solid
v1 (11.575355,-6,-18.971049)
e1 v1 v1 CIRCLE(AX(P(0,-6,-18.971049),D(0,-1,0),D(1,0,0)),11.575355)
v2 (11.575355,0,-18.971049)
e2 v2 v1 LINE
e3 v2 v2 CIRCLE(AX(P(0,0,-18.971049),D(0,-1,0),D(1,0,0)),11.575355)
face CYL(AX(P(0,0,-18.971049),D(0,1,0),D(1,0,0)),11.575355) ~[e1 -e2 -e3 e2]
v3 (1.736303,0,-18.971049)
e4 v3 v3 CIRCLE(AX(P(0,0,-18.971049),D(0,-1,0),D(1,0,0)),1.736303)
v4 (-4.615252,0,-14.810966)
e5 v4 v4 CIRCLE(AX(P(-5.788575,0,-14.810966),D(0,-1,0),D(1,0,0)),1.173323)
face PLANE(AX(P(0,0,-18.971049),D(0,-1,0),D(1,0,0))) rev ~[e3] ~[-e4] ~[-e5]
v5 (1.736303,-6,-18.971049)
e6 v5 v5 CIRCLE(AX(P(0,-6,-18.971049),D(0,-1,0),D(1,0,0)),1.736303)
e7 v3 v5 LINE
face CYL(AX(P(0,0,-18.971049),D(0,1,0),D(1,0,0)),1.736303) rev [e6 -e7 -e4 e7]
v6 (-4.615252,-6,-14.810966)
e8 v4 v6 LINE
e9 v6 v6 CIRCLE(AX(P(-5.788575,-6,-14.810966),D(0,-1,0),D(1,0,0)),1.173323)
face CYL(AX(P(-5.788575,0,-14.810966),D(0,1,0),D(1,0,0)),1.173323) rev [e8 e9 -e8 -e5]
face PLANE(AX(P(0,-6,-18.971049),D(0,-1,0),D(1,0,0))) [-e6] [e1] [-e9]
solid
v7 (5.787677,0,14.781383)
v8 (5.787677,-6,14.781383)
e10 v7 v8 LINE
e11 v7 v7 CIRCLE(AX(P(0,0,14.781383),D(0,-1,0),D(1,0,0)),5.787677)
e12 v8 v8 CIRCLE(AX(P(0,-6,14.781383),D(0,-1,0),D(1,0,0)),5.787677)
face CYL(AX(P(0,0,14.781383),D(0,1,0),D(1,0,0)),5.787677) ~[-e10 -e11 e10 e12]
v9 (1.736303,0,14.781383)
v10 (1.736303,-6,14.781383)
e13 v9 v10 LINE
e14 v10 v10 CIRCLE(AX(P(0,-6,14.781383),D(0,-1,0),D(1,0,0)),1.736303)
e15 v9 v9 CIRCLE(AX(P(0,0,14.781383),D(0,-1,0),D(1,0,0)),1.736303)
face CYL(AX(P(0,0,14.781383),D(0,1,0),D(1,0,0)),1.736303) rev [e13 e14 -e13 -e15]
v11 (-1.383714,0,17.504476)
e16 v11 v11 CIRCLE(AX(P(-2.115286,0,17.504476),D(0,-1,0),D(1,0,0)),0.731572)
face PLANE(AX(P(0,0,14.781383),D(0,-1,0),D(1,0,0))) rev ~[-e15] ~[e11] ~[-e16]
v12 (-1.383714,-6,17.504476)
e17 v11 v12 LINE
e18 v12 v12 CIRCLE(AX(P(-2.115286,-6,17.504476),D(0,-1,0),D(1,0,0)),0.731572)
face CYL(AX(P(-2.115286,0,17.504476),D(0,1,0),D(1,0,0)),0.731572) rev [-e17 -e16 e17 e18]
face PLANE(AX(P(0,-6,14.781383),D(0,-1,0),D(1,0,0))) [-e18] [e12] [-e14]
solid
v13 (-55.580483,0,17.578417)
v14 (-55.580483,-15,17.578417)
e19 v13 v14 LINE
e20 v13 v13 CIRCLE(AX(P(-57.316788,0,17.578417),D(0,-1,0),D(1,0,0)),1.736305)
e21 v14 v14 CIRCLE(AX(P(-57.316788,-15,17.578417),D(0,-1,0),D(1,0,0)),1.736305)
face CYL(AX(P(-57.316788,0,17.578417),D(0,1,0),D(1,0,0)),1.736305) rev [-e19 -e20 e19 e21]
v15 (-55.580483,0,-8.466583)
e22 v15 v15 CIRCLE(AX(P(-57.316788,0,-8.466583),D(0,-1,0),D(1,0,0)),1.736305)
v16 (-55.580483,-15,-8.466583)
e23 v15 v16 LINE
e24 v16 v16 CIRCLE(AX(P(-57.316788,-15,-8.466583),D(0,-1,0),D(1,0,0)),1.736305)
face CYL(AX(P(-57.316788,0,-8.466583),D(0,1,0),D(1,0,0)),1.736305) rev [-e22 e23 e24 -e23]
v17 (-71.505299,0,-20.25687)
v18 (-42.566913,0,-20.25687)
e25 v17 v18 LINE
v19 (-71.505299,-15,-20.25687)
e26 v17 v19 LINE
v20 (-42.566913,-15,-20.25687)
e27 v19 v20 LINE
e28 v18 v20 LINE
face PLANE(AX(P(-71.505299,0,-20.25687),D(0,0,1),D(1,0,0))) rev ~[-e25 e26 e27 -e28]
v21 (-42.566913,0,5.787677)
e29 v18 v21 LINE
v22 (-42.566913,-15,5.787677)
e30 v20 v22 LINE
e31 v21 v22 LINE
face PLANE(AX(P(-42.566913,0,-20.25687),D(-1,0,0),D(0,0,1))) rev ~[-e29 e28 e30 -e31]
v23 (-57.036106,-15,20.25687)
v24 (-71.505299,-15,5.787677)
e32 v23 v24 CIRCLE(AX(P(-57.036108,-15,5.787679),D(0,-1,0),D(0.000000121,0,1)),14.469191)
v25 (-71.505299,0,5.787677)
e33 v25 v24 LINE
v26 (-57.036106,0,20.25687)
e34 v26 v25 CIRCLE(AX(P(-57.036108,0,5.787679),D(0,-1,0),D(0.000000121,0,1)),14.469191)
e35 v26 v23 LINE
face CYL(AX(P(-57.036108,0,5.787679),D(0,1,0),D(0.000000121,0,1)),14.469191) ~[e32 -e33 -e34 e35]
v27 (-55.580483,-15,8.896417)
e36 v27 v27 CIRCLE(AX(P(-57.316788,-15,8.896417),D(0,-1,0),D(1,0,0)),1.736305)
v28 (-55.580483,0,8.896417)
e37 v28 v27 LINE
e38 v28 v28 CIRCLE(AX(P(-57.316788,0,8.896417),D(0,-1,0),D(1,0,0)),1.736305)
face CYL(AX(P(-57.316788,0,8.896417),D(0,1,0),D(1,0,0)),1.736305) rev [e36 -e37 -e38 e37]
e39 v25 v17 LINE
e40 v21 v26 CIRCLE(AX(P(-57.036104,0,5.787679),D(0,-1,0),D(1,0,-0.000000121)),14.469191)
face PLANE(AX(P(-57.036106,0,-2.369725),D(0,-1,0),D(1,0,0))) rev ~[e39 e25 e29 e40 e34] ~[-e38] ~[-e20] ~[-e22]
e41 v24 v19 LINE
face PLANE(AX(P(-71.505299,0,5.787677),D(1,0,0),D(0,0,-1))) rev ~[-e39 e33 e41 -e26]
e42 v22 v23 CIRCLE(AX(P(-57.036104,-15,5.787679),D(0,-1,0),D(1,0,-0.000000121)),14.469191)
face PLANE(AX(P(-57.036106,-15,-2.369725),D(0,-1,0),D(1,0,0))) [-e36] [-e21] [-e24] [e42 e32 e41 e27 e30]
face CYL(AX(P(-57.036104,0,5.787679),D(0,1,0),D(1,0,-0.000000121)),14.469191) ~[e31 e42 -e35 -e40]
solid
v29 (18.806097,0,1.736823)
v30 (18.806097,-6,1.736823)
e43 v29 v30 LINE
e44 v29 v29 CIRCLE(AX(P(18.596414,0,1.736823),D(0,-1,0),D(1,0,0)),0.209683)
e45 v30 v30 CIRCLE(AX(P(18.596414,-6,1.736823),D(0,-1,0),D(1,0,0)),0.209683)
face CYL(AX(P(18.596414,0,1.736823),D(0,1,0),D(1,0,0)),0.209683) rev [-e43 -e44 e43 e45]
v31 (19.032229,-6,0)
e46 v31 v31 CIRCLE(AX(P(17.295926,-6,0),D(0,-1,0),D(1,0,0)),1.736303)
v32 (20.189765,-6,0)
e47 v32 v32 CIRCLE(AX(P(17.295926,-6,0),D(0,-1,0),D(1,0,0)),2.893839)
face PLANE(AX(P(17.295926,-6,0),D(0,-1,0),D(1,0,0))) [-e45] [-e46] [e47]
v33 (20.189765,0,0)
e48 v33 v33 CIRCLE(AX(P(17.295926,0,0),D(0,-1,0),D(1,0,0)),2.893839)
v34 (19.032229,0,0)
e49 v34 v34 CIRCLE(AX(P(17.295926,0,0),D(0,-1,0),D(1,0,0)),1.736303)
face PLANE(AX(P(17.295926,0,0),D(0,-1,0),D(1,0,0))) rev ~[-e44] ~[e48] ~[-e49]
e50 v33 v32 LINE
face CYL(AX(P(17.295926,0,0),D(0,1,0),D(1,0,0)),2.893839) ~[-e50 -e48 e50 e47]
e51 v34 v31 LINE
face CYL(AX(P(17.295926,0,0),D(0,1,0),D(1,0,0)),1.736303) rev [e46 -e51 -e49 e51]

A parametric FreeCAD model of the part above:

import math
import FreeCAD as App
import Part
import Sketcher
Q = App.Units.Quantity

doc = App.newDocument("Part")
body = doc.addObject("PartDesign::Body", "Body")

# Sketch on XZ plane
sketch1 = body.newObject("Sketcher::SketchObject", "Sketch")
sketch1.AttachmentSupport = (doc.getObject("XZ_Plane"), [""])
sketch1.MapMode = "FlatFace"
sketch1.addGeometry([
    Part.LineSegment(App.Vector(-71.5, -20.3, 0), App.Vector(-42.6, -20.3, 0)),  # 0
    Part.LineSegment(App.Vector(-42.6, -20.3, 0), App.Vector(-42.6, 5.8, 0)),  # 1
    Part.ArcOfCircle(Part.Circle(App.Vector(-57, 5.8, 0), App.Vector(0, 0, 1), 14.5), math.radians(0), math.radians(90)),  # 2
    Part.ArcOfCircle(Part.Circle(App.Vector(-57, 5.8, 0), App.Vector(0, 0, 1), 14.5), math.radians(90), math.radians(180)),  # 3
    Part.LineSegment(App.Vector(-71.5, 5.8, 0), App.Vector(-71.5, -20.3, 0)),  # 4
    Part.Circle(App.Vector(-57.3, -8.5, 0), App.Vector(0, 0, 1), 1.7),  # 5
    Part.Circle(App.Vector(-57.3, 8.9, 0), App.Vector(0, 0, 1), 1.7),  # 6
    Part.Circle(App.Vector(-57.3, 17.6, 0), App.Vector(0, 0, 1), 1.7),  # 7
], False)
sketch1.addConstraint([
    Sketcher.Constraint("Coincident", 0, 2, 1, 1),
    Sketcher.Constraint("Tangent", 1, 2, 2, 1),
    Sketcher.Constraint("Tangent", 2, 2, 3, 1),
    Sketcher.Constraint("Tangent", 3, 2, 4, 1),
    Sketcher.Constraint("Coincident", 4, 2, 0, 1),
    Sketcher.Constraint("Horizontal", 0),
    Sketcher.Constraint("Vertical", 1),
    Sketcher.Constraint("Vertical", 4),
    Sketcher.Constraint("Equal", 2, 3),
    Sketcher.Constraint("Equal", 5, 6),
    Sketcher.Constraint("Equal", 6, 7),
    Sketcher.Constraint("Vertical", 5, 3, 6, 3),
    Sketcher.Constraint("Vertical", 6, 3, 7, 3),
    Sketcher.Constraint("Vertical", 3, 3, 2, 2),
    Sketcher.Constraint("Diameter", 5, Q("3.47261 mm")),
    Sketcher.Constraint("Radius", 2, Q("14.469191 mm")),
    Sketcher.Constraint("DistanceY", 5, 3, 6, 3, Q("17.363 mm")),
    Sketcher.Constraint("DistanceY", 6, 3, 7, 3, Q("8.682 mm")),
    Sketcher.Constraint("DistanceX", 3, 2, -1, 1, Q("71.505299 mm")),
    Sketcher.Constraint("DistanceY", 1, 1, 1, 2, Q("26.044547 mm")),
    Sketcher.Constraint("DistanceY", -1, 1, 2, 3, Q("5.787679 mm")),
    Sketcher.Constraint("DistanceX", 5, 3, -1, 1, Q("57.316788 mm")),
    Sketcher.Constraint("DistanceY", 5, 3, 3, 3, Q("14.254262 mm")),
])
pad1 = body.newObject("PartDesign::Pad", "Pad")
pad1.Profile = sketch1
pad1.Length = 15
body2 = doc.addObject("PartDesign::Body", "Body001")

# Sketch on XZ plane
sketch2 = body2.newObject("Sketcher::SketchObject", "Sketch001")
sketch2.AttachmentSupport = (doc.getObject("XZ_Plane001"), [""])
sketch2.MapMode = "FlatFace"
sketch2.addGeometry([
    Part.Circle(App.Vector(0, 14.8, 0), App.Vector(0, 0, 1), 5.8),
    Part.Circle(App.Vector(0, 14.8, 0), App.Vector(0, 0, 1), 1.7),
    Part.Circle(App.Vector(-2.1, 17.5, 0), App.Vector(0, 0, 1), 0.7),
], False)
sketch2.addConstraint([
    Sketcher.Constraint("Coincident", 1, 3, 0, 3),
    Sketcher.Constraint("PointOnObject", 0, 3, -2),
    Sketcher.Constraint("Diameter", 0, Q("11.575354 mm")),
    Sketcher.Constraint("Diameter", 1, Q("3.472606 mm")),
    Sketcher.Constraint("Diameter", 2, Q("1.463144 mm")),
    Sketcher.Constraint("DistanceY", -1, 1, 0, 3, Q("14.781383 mm")),
    Sketcher.Constraint("DistanceX", 2, 3, -1, 1, Q("2.115286 mm")),
    Sketcher.Constraint("DistanceY", -1, 1, 2, 3, Q("17.504476 mm")),
])
pad2 = body2.newObject("PartDesign::Pad", "Pad001")
pad2.Profile = sketch2
pad2.Length = 6
body3 = doc.addObject("PartDesign::Body", "Body002")

# Sketch on XZ plane
sketch3 = body3.newObject("Sketcher::SketchObject", "Sketch002")
sketch3.AttachmentSupport = (doc.getObject("XZ_Plane002"), [""])
sketch3.MapMode = "FlatFace"
sketch3.addGeometry([
    Part.Circle(App.Vector(0, -19, 0), App.Vector(0, 0, 1), 11.6),
    Part.Circle(App.Vector(0, -19, 0), App.Vector(0, 0, 1), 1.7),
    Part.Circle(App.Vector(-5.8, -14.8, 0), App.Vector(0, 0, 1), 1.2),
], False)
sketch3.addConstraint([
    Sketcher.Constraint("Coincident", 1, 3, 0, 3),
    Sketcher.Constraint("PointOnObject", 0, 3, -2),
    Sketcher.Constraint("Diameter", 0, Q("23.15071 mm")),
    Sketcher.Constraint("Diameter", 1, Q("3.472606 mm")),
    Sketcher.Constraint("Diameter", 2, Q("2.346646 mm")),
    Sketcher.Constraint("DistanceY", 0, 3, -1, 1, Q("18.971049 mm")),
    Sketcher.Constraint("DistanceX", 2, 3, -1, 1, Q("5.788575 mm")),
    Sketcher.Constraint("DistanceY", 2, 3, -1, 1, Q("14.810966 mm")),
])
pad3 = body3.newObject("PartDesign::Pad", "Pad002")
pad3.Profile = sketch3
pad3.Length = 6
body4 = doc.addObject("PartDesign::Body", "Body003")

# Sketch on XZ plane
sketch4 = body4.newObject("Sketcher::SketchObject", "Sketch003")
sketch4.AttachmentSupport = (doc.getObject("XZ_Plane003"), [""])
sketch4.MapMode = "FlatFace"
sketch4.addGeometry([
    Part.Circle(App.Vector(17.3, 0, 0), App.Vector(0, 0, 1), 2.89),
    Part.Circle(App.Vector(17.3, 0, 0), App.Vector(0, 0, 1), 1.74),
    Part.Circle(App.Vector(18.6, 1.74, 0), App.Vector(0, 0, 1), 0.21),
], False)
sketch4.addConstraint([
    Sketcher.Constraint("Coincident", 1, 3, 0, 3),
    Sketcher.Constraint("PointOnObject", 0, 3, -1),
    Sketcher.Constraint("Diameter", 0, Q("5.787678 mm")),
    Sketcher.Constraint("Diameter", 1, Q("3.472606 mm")),
    Sketcher.Constraint("Diameter", 2, Q("0.419366 mm")),
    Sketcher.Constraint("DistanceX", -1, 1, 0, 3, Q("17.295926 mm")),
    Sketcher.Constraint("DistanceX", -1, 1, 2, 3, Q("18.596414 mm")),
    Sketcher.Constraint("DistanceY", -1, 1, 2, 3, Q("1.736823 mm")),
])
pad4 = body4.newObject("PartDesign::Pad", "Pad003")
pad4.Profile = sketch4
pad4.Length = 6

doc.recompute()
